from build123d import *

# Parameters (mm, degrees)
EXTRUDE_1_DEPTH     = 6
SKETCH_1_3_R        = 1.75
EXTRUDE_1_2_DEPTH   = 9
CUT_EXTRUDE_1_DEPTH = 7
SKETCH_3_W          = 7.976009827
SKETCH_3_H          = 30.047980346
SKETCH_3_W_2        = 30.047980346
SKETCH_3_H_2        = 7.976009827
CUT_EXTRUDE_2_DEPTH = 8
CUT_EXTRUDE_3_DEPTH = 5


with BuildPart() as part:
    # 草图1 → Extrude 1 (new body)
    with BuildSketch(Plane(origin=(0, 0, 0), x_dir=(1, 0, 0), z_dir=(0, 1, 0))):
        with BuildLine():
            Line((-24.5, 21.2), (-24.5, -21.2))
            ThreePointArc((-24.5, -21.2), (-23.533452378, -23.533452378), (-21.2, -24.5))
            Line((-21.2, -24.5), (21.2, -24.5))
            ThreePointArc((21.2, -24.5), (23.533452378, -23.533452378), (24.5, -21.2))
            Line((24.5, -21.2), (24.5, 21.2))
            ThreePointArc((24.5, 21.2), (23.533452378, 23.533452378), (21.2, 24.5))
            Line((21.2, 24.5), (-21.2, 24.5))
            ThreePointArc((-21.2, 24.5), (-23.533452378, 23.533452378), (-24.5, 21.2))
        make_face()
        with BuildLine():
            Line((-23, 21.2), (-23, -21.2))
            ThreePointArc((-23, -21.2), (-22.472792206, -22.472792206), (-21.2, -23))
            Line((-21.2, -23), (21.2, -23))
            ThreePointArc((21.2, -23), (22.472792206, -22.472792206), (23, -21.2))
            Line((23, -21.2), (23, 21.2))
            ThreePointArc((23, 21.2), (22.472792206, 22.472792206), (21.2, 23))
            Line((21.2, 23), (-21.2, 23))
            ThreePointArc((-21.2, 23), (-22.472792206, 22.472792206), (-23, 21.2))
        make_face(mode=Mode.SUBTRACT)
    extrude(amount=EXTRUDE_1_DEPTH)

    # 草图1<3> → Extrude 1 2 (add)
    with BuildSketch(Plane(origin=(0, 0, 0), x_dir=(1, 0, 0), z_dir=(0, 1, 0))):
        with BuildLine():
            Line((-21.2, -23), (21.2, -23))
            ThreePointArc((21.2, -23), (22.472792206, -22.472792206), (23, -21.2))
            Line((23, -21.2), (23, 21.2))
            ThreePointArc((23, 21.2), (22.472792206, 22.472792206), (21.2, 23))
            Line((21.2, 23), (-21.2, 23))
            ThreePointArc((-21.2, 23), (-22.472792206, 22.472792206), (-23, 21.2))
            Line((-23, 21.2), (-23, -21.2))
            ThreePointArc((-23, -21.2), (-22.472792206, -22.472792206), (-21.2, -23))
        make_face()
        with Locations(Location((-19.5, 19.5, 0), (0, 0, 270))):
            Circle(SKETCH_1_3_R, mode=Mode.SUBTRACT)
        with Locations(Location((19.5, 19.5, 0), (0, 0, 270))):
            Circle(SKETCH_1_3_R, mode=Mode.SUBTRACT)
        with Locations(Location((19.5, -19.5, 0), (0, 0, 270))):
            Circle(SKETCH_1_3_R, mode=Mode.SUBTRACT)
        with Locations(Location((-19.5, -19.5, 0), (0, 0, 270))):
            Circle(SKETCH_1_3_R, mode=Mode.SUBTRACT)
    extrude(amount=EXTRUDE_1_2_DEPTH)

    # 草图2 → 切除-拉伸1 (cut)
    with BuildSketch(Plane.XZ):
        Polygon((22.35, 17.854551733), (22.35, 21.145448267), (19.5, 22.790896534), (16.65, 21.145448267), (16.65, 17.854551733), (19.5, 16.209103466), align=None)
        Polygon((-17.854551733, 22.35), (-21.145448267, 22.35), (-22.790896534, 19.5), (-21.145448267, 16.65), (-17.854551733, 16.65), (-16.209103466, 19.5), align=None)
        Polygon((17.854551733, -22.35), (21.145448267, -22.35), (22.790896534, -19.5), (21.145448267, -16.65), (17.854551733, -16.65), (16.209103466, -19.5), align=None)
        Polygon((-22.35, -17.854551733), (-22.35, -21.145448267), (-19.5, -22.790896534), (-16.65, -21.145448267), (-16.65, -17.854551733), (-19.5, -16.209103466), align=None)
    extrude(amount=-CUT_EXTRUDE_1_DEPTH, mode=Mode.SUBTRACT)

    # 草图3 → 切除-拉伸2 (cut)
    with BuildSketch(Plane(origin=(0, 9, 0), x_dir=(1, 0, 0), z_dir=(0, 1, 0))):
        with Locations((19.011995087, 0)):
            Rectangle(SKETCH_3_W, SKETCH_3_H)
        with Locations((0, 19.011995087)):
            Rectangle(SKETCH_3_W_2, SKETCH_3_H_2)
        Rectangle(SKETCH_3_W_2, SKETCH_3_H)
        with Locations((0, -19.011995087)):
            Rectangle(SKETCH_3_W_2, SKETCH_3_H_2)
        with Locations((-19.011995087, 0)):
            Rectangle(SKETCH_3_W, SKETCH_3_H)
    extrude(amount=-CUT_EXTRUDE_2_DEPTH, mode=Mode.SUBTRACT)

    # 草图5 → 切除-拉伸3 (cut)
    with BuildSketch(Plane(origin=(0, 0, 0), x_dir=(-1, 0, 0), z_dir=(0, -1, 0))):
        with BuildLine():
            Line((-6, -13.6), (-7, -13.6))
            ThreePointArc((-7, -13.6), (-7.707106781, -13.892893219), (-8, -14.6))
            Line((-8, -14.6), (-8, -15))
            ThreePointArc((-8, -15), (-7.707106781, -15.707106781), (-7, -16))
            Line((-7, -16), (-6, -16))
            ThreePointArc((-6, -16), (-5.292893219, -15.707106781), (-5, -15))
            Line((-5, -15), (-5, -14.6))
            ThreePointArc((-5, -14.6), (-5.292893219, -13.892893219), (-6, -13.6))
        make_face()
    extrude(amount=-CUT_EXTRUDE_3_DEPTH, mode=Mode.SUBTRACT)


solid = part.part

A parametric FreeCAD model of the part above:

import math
import FreeCAD as App
import Part
import Sketcher

V = App.Vector
Q = App.Units.Quantity


def add_polygon(sketch, points):
    """Adds a closed chain of lines whose ends are joined by coincident constraints."""
    first, n = sketch.GeometryCount, len(points)
    for a, b in zip(points, points[1:] + points[:1]):
        sketch.addGeometry(Part.LineSegment(App.Vector(*a, 0), App.Vector(*b, 0)), False)
    for i in range(n):
        sketch.addConstraint(Sketcher.Constraint("Coincident", first + i, 2, first + (i + 1) % n, 1))

doc = App.newDocument("Part")
body = doc.addObject("PartDesign::Body", "Body")

# Sketch on XZ plane
sketch1 = doc.addObject("Sketcher::SketchObject", "Sketch")
body.addObject(sketch1)
sketch1.AttachmentSupport = (doc.XZ_Plane, [""])
sketch1.MapMode = "FlatFace"
sketch1.addGeometry(Part.LineSegment(V(-24.5, -21.2, 0), V(-24.5, 21.2, 0)), False)
sketch1.addGeometry(Part.ArcOfCircle(Part.Circle(V(-21.2, 21.2, 0), V(0, 0, 1), 3.3), math.radians(90), math.radians(180)), False)
sketch1.addGeometry(Part.LineSegment(V(-21.2, 24.5, 0), V(21.2, 24.5, 0)), False)
sketch1.addGeometry(Part.ArcOfCircle(Part.Circle(V(21.2, 21.2, 0), V(0, 0, 1), 3.3), math.radians(0), math.radians(90)), False)
sketch1.addGeometry(Part.LineSegment(V(24.5, 21.2, 0), V(24.5, -21.2, 0)), False)
sketch1.addGeometry(Part.ArcOfCircle(Part.Circle(V(21.2, -21.2, 0), V(0, 0, 1), 3.3), math.radians(-90), math.radians(0)), False)
sketch1.addGeometry(Part.LineSegment(V(21.2, -24.5, 0), V(-21.2, -24.5, 0)), False)
sketch1.addGeometry(Part.ArcOfCircle(Part.Circle(V(-21.2, -21.2, 0), V(0, 0, 1), 3.3), math.radians(180), math.radians(270)), False)
sketch1.addGeometry(Part.LineSegment(V(-23, 21.2, 0), V(-23, -21.2, 0)), False)
sketch1.addGeometry(Part.ArcOfCircle(Part.Circle(V(-21.2, -21.2, 0), V(0, 0, 1), 1.8), math.radians(180), math.radians(270)), False)
sketch1.addGeometry(Part.LineSegment(V(-21.2, -23, 0), V(21.2, -23, 0)), False)
sketch1.addGeometry(Part.ArcOfCircle(Part.Circle(V(21.2, -21.2, 0), V(0, 0, 1), 1.8), math.radians(-90), math.radians(0)), False)
sketch1.addGeometry(Part.LineSegment(V(23, -21.2, 0), V(23, 21.2, 0)), False)
sketch1.addGeometry(Part.ArcOfCircle(Part.Circle(V(21.2, 21.2, 0), V(0, 0, 1), 1.8), math.radians(0), math.radians(90)), False)
sketch1.addGeometry(Part.LineSegment(V(21.2, 23, 0), V(-21.2, 23, 0)), False)
sketch1.addGeometry(Part.ArcOfCircle(Part.Circle(V(-21.2, 21.2, 0), V(0, 0, 1), 1.8), math.radians(90), math.radians(180)), False)
sketch1.addConstraint(Sketcher.Constraint("Tangent", 0, 2, 1, 2))
sketch1.addConstraint(Sketcher.Constraint("Tangent", 1, 1, 2, 1))
sketch1.addConstraint(Sketcher.Constraint("Tangent", 2, 2, 3, 2))
sketch1.addConstraint(Sketcher.Constraint("Tangent", 3, 1, 4, 1))
sketch1.addConstraint(Sketcher.Constraint("Tangent", 4, 2, 5, 2))
sketch1.addConstraint(Sketcher.Constraint("Tangent", 5, 1, 6, 1))
sketch1.addConstraint(Sketcher.Constraint("Tangent", 6, 2, 7, 2))
sketch1.addConstraint(Sketcher.Constraint("Tangent", 7, 1, 0, 1))
sketch1.addConstraint(Sketcher.Constraint("Tangent", 8, 2, 9, 1))
sketch1.addConstraint(Sketcher.Constraint("Tangent", 9, 2, 10, 1))
sketch1.addConstraint(Sketcher.Constraint("Tangent", 10, 2, 11, 1))
sketch1.addConstraint(Sketcher.Constraint("Tangent", 11, 2, 12, 1))
sketch1.addConstraint(Sketcher.Constraint("Tangent", 12, 2, 13, 1))
sketch1.addConstraint(Sketcher.Constraint("Tangent", 13, 2, 14, 1))
sketch1.addConstraint(Sketcher.Constraint("Tangent", 14, 2, 15, 1))
sketch1.addConstraint(Sketcher.Constraint("Tangent", 15, 2, 8, 1))
sketch1.addConstraint(Sketcher.Constraint("Vertical", 0))
sketch1.addConstraint(Sketcher.Constraint("Horizontal", 2))
sketch1.addConstraint(Sketcher.Constraint("Vertical", 4))
sketch1.addConstraint(Sketcher.Constraint("Horizontal", 6))
sketch1.addConstraint(Sketcher.Constraint("Vertical", 8))
sketch1.addConstraint(Sketcher.Constraint("Horizontal", 10))
sketch1.addConstraint(Sketcher.Constraint("Vertical", 12))
sketch1.addConstraint(Sketcher.Constraint("Horizontal", 14))
sketch1.addConstraint(Sketcher.Constraint("Coincident", 9, 3, 7, 3))
sketch1.addConstraint(Sketcher.Constraint("Coincident", 11, 3, 5, 3))
sketch1.addConstraint(Sketcher.Constraint("Coincident", 13, 3, 3, 3))
sketch1.addConstraint(Sketcher.Constraint("Equal", 1, 3))
sketch1.addConstraint(Sketcher.Constraint("Equal", 3, 5))
sketch1.addConstraint(Sketcher.Constraint("Equal", 5, 7))
sketch1.addConstraint(Sketcher.Constraint("Equal", 13, 15))
sketch1.addConstraint(Sketcher.Constraint("Symmetric", 1, 3, 5, 3, -1, 1))
sketch1.addConstraint(Sketcher.Constraint("Equal", 14, 0))
sketch1.addConstraint(Sketcher.Constraint("Radius", 1, Q("3.3 mm")))
sketch1.addConstraint(Sketcher.Constraint("Radius", 9, Q("1.8 mm")))
sketch1.addConstraint(Sketcher.Constraint("DistanceX", 2, 1, 2, 2, Q("42.4 mm")))
pad1 = doc.addObject("PartDesign::Pad", "Pad")
body.addObject(pad1)
pad1.Profile = sketch1
pad1.Length = 6
pad1.Reversed = True

# Sketch on XZ plane
sketch2 = doc.addObject("Sketcher::SketchObject", "Sketch001")
body.addObject(sketch2)
sketch2.AttachmentSupport = (doc.XZ_Plane, [""])
sketch2.MapMode = "FlatFace"
sketch2.addGeometry(Part.LineSegment(V(-21.2, 23, 0), V(21.2, 23, 0)), False)
sketch2.addGeometry(Part.ArcOfCircle(Part.Circle(V(21.2, 21.2, 0), V(0, 0, 1), 1.8), math.radians(0), math.radians(90)), False)
sketch2.addGeometry(Part.LineSegment(V(23, 21.2, 0), V(23, -21.2, 0)), False)
sketch2.addGeometry(Part.ArcOfCircle(Part.Circle(V(21.2, -21.2, 0), V(0, 0, 1), 1.8), math.radians(-90), math.radians(0)), False)
sketch2.addGeometry(Part.LineSegment(V(21.2, -23, 0), V(-21.2, -23, 0)), False)
sketch2.addGeometry(Part.ArcOfCircle(Part.Circle(V(-21.2, -21.2, 0), V(0, 0, 1), 1.8), math.radians(180), math.radians(270)), False)
sketch2.addGeometry(Part.LineSegment(V(-23, -21.2, 0), V(-23, 21.2, 0)), False)
sketch2.addGeometry(Part.ArcOfCircle(Part.Circle(V(-21.2, 21.2, 0), V(0, 0, 1), 1.8), math.radians(90), math.radians(180)), False)
sketch2.addGeometry(Part.Circle(V(-19.5, 19.5, 0), V(0, 0, 1), 1.8), False)
sketch2.addGeometry(Part.Circle(V(19.5, 19.5, 0), V(0, 0, 1), 1.8), False)
sketch2.addGeometry(Part.Circle(V(-19.5, -19.5, 0), V(0, 0, 1), 1.8), False)
sketch2.addGeometry(Part.Circle(V(19.5, -19.5, 0), V(0, 0, 1), 1.8), False)
sketch2.addConstraint(Sketcher.Constraint("Tangent", 0, 2, 1, 2))
sketch2.addConstraint(Sketcher.Constraint("Tangent", 1, 1, 2, 1))
sketch2.addConstraint(Sketcher.Constraint("Tangent", 2, 2, 3, 2))
sketch2.addConstraint(Sketcher.Constraint("Tangent", 3, 1, 4, 1))
sketch2.addConstraint(Sketcher.Constraint("Tangent", 4, 2, 5, 2))
sketch2.addConstraint(Sketcher.Constraint("Tangent", 5, 1, 6, 1))
sketch2.addConstraint(Sketcher.Constraint("Tangent", 6, 2, 7, 2))
sketch2.addConstraint(Sketcher.Constraint("Tangent", 7, 1, 0, 1))
sketch2.addConstraint(Sketcher.Constraint("Horizontal", 0))
sketch2.addConstraint(Sketcher.Constraint("Vertical", 2))
sketch2.addConstraint(Sketcher.Constraint("Horizontal", 4))
sketch2.addConstraint(Sketcher.Constraint("Vertical", 6))
sketch2.addConstraint(Sketcher.Constraint("Equal", 1, 3))
sketch2.addConstraint(Sketcher.Constraint("Equal", 3, 5))
sketch2.addConstraint(Sketcher.Constraint("Equal", 5, 7))
sketch2.addConstraint(Sketcher.Constraint("Equal", 8, 9))
sketch2.addConstraint(Sketcher.Constraint("Equal", 9, 10))
sketch2.addConstraint(Sketcher.Constraint("Equal", 10, 11))
sketch2.addConstraint(Sketcher.Constraint("Symmetric", 1, 3, 5, 3, -1, 1))
sketch2.addConstraint(Sketcher.Constraint("Symmetric", 9, 3, 10, 3, -1, 1))
sketch2.addConstraint(Sketcher.Constraint("Symmetric", 8, 3, 11, 3, -1, 1))
sketch2.addConstraint(Sketcher.Constraint("Symmetric", 8, 3, 9, 3, -2))
sketch2.addConstraint(Sketcher.Constraint("Equal", 4, 2))
sketch2.addConstraint(Sketcher.Constraint("Diameter", 8, Q("3.5 mm")))
sketch2.addConstraint(Sketcher.Constraint("Radius", 1, Q("1.8 mm")))
sketch2.addConstraint(Sketcher.Constraint("DistanceX", 0, 1, 0, 2, Q("42.4 mm")))
sketch2.addConstraint(Sketcher.Constraint("DistanceX", 8, 3, 9, 3, Q("39 mm")))
sketch2.addConstraint(Sketcher.Constraint("DistanceY", 10, 3, 8, 3, Q("39 mm")))
pad2 = doc.addObject("PartDesign::Pad", "Pad001")
body.addObject(pad2)
pad2.Profile = sketch2
pad2.Length = 9
pad2.Reversed = True

# Sketch on XZ plane
sketch3 = doc.addObject("Sketcher::SketchObject", "Sketch002")
body.addObject(sketch3)
sketch3.AttachmentSupport = (doc.XZ_Plane, [""])
sketch3.MapMode = "FlatFace"
add_polygon(sketch3, [(22.4, 17.9), (22.4, 21.1), (19.5, 22.8), (16.6, 21.1), (16.6, 17.9), (19.5, 16.2)])  # lines 0-5
add_polygon(sketch3, [(-17.9, 22.4), (-21.1, 22.4), (-22.8, 19.5), (-21.1, 16.6), (-17.9, 16.6), (-16.2, 19.5)])  # lines 6-11
add_polygon(sketch3, [(17.9, -22.4), (21.1, -22.4), (22.8, -19.5), (21.1, -16.6), (17.9, -16.6), (16.2, -19.5)])  # lines 12-17
add_polygon(sketch3, [(-22.4, -17.9), (-22.4, -21.1), (-19.5, -22.8), (-16.6, -21.1), (-16.6, -17.9), (-19.5, -16.2)])  # lines 18-23
sketch3.addConstraint(Sketcher.Constraint("Vertical", 0))
sketch3.addConstraint(Sketcher.Constraint("Vertical", 3))
sketch3.addConstraint(Sketcher.Constraint("Horizontal", 6))
sketch3.addConstraint(Sketcher.Constraint("Horizontal", 9))
sketch3.addConstraint(Sketcher.Constraint("Horizontal", 12))
sketch3.addConstraint(Sketcher.Constraint("Horizontal", 15))
sketch3.addConstraint(Sketcher.Constraint("Vertical", 18))
sketch3.addConstraint(Sketcher.Constraint("Vertical", 21))
sketch3.addConstraint(Sketcher.Constraint("Symmetric", 6, 2, 12, 2, -1, 1))
sketch3.addConstraint(Sketcher.Constraint("Symmetric", 7, 2, 13, 2, -1, 1))
sketch3.addConstraint(Sketcher.Constraint("Symmetric", 8, 2, 14, 2, -1, 1))
sketch3.addConstraint(Sketcher.Constraint("Symmetric", 10, 2, 16, 2, -1, 1))
sketch3.addConstraint(Sketcher.Constraint("Symmetric", 0, 2, 18, 2, -1, 1))
sketch3.addConstraint(Sketcher.Constraint("Symmetric", 1, 2, 19, 2, -1, 1))
sketch3.addConstraint(Sketcher.Constraint("Symmetric", 2, 2, 20, 2, -1, 1))
sketch3.addConstraint(Sketcher.Constraint("Symmetric", 4, 2, 22, 2, -1, 1))
sketch3.addConstraint(Sketcher.Constraint("Parallel", 1, 4))
sketch3.addConstraint(Sketcher.Constraint("Parallel", 2, 5))
sketch3.addConstraint(Sketcher.Constraint("Perpendicular", 4, 7))
sketch3.addConstraint(Sketcher.Constraint("Perpendicular", 5, 8))
sketch3.addConstraint(Sketcher.Constraint("Parallel", 7, 10))
sketch3.addConstraint(Sketcher.Constraint("Parallel", 8, 11))
sketch3.addConstraint(Sketcher.Constraint("Parallel", 13, 16))
sketch3.addConstraint(Sketcher.Constraint("Parallel", 14, 17))
sketch3.addConstraint(Sketcher.Constraint("Parallel", 19, 22))
sketch3.addConstraint(Sketcher.Constraint("Parallel", 20, 23))
sketch3.addConstraint(Sketcher.Constraint("Horizontal", 0, 2, 2, 2))
sketch3.addConstraint(Sketcher.Constraint("Horizontal", 3, 2, 5, 2))
sketch3.addConstraint(Sketcher.Constraint("Horizontal", 7, 2, 10, 2))
sketch3.addConstraint(Sketcher.Constraint("Vertical", 1, 2, 4, 2))
sketch3.addConstraint(Sketcher.Constraint("Vertical", 6, 2, 8, 2))
sketch3.addConstraint(Sketcher.Constraint("Equal", 15, 0))
sketch3.addConstraint(Sketcher.Constraint("Equal", 5, 7))
sketch3.addConstraint(Sketcher.Constraint("Angle", 1, Q("150 deg")))
sketch3.addConstraint(Sketcher.Constraint("DistanceX", -1, 1, 1, 2, Q("19.5 mm")))
sketch3.addConstraint(Sketcher.Constraint("DistanceY", -1, 1, 7, 2, Q("19.5 mm")))
sketch3.addConstraint(Sketcher.Constraint("DistanceX", 2, 2, 0, 2, Q("5.7 mm")))
sketch3.addConstraint(Sketcher.Constraint("DistanceX", 6, 2, 6, 1, Q("3.290897 mm")))
sketch3.addConstraint(Sketcher.Constraint("DistanceY", -1, 1, 0, 2, Q("21.145448 mm")))
sketch3.addConstraint(Sketcher.Constraint("DistanceX", 6, 2, -1, 1, Q("21.145448 mm")))
pocket1 = doc.addObject("PartDesign::Pocket", "Pocket")
body.addObject(pocket1)
pocket1.Profile = sketch3
pocket1.Length = 7

# Sketch on XZ plane
sketch4 = doc.addObject("Sketcher::SketchObject", "Sketch003")
body.addObject(sketch4)
sketch4.AttachmentSupport = (doc.XZ_Plane, [""])
sketch4.MapMode = "FlatFace"
sketch4.AttachmentOffset = App.Placement(V(0, 0, -9), App.Rotation())
add_polygon(sketch4, [(23, 15), (23, -15), (15, -15), (15, -23), (-15, -23), (-15, -15), (-23, -15), (-23, 15), (-15, 15), (-15, 23), (15, 23), (15, 15)])  # lines 0-11
sketch4.addConstraint(Sketcher.Constraint("Vertical", 0))
sketch4.addConstraint(Sketcher.Constraint("Horizontal", 1))
sketch4.addConstraint(Sketcher.Constraint("Vertical", 2))
sketch4.addConstraint(Sketcher.Constraint("Horizontal", 3))
sketch4.addConstraint(Sketcher.Constraint("Vertical", 4))
sketch4.addConstraint(Sketcher.Constraint("Horizontal", 5))
sketch4.addConstraint(Sketcher.Constraint("Vertical", 6))
sketch4.addConstraint(Sketcher.Constraint("Horizontal", 7))
sketch4.addConstraint(Sketcher.Constraint("Vertical", 8))
sketch4.addConstraint(Sketcher.Constraint("Horizontal", 9))
sketch4.addConstraint(Sketcher.Constraint("Vertical", 10))
sketch4.addConstraint(Sketcher.Constraint("Horizontal", 11))
sketch4.addConstraint(Sketcher.Constraint("Symmetric", 0, 2, 6, 2, -1, 1))
sketch4.addConstraint(Sketcher.Constraint("Symmetric", 2, 2, 8, 2, -1, 1))
sketch4.addConstraint(Sketcher.Constraint("Symmetric", 4, 2, 10, 2, -1, 1))
sketch4.addConstraint(Sketcher.Constraint("Symmetric", 1, 2, 4, 2, -2))
sketch4.addConstraint(Sketcher.Constraint("Equal", 9, 0))
sketch4.addConstraint(Sketcher.Constraint("Equal", 11, 2))
sketch4.addConstraint(Sketcher.Constraint("DistanceX", -1, 1, 0, 2, Q("23 mm")))
sketch4.addConstraint(Sketcher.Constraint("DistanceX", 1, 2, 1, 1, Q("7.97601 mm")))
pocket2 = doc.addObject("PartDesign::Pocket", "Pocket001")
body.addObject(pocket2)
pocket2.Profile = sketch4
pocket2.Length = 8
pocket2.Reversed = True

# Sketch on XZ plane
sketch5 = doc.addObject("Sketcher::SketchObject", "Sketch004")
body.addObject(sketch5)
sketch5.AttachmentSupport = (doc.XZ_Plane, [""])
sketch5.MapMode = "FlatFace"
sketch5.addGeometry(Part.LineSegment(V(6, 13.6, 0), V(7, 13.6, 0)), False)
sketch5.addGeometry(Part.ArcOfCircle(Part.Circle(V(7, 14.6, 0), V(0, 0, 1), 1), math.radians(-90), math.radians(0)), False)
sketch5.addGeometry(Part.LineSegment(V(8, 14.6, 0), V(8, 15, 0)), False)
sketch5.addGeometry(Part.ArcOfCircle(Part.Circle(V(7, 15, 0), V(0, 0, 1), 1), math.radians(0), math.radians(90)), False)
sketch5.addGeometry(Part.LineSegment(V(7, 16, 0), V(6, 16, 0)), False)
sketch5.addGeometry(Part.ArcOfCircle(Part.Circle(V(6, 15, 0), V(0, 0, 1), 1), math.radians(90), math.radians(180)), False)
sketch5.addGeometry(Part.LineSegment(V(5, 15, 0), V(5, 14.6, 0)), False)
sketch5.addGeometry(Part.ArcOfCircle(Part.Circle(V(6, 14.6, 0), V(0, 0, 1), 1), math.radians(-180), math.radians(-90)), False)
sketch5.addConstraint(Sketcher.Constraint("Tangent", 0, 2, 1, 1))
sketch5.addConstraint(Sketcher.Constraint("Tangent", 1, 2, 2, 1))
sketch5.addConstraint(Sketcher.Constraint("Tangent", 2, 2, 3, 1))
sketch5.addConstraint(Sketcher.Constraint("Tangent", 3, 2, 4, 1))
sketch5.addConstraint(Sketcher.Constraint("Tangent", 4, 2, 5, 1))
sketch5.addConstraint(Sketcher.Constraint("Tangent", 5, 2, 6, 1))
sketch5.addConstraint(Sketcher.Constraint("Tangent", 6, 2, 7, 1))
sketch5.addConstraint(Sketcher.Constraint("Tangent", 7, 2, 0, 1))
sketch5.addConstraint(Sketcher.Constraint("Horizontal", 0))
sketch5.addConstraint(Sketcher.Constraint("Vertical", 2))
sketch5.addConstraint(Sketcher.Constraint("Horizontal", 4))
sketch5.addConstraint(Sketcher.Constraint("Vertical", 6))
sketch5.addConstraint(Sketcher.Constraint("Equal", 1, 3))
sketch5.addConstraint(Sketcher.Constraint("Equal", 3, 5))
sketch5.addConstraint(Sketcher.Constraint("Equal", 5, 7))
sketch5.addConstraint(Sketcher.Constraint("Radius", 1, Q("1 mm")))
sketch5.addConstraint(Sketcher.Constraint("DistanceX", 0, 1, 0, 2, Q("1 mm")))
sketch5.addConstraint(Sketcher.Constraint("DistanceY", 2, 1, 2, 2, Q("0.4 mm")))
sketch5.addConstraint(Sketcher.Constraint("DistanceX", -1, 1, 1, 3, Q("7 mm")))
sketch5.addConstraint(Sketcher.Constraint("DistanceY", -1, 1, 3, 3, Q("15 mm")))
pocket3 = doc.addObject("PartDesign::Pocket", "Pocket002")
body.addObject(pocket3)
pocket3.Profile = sketch5
pocket3.Length = 5

doc.recompute()
